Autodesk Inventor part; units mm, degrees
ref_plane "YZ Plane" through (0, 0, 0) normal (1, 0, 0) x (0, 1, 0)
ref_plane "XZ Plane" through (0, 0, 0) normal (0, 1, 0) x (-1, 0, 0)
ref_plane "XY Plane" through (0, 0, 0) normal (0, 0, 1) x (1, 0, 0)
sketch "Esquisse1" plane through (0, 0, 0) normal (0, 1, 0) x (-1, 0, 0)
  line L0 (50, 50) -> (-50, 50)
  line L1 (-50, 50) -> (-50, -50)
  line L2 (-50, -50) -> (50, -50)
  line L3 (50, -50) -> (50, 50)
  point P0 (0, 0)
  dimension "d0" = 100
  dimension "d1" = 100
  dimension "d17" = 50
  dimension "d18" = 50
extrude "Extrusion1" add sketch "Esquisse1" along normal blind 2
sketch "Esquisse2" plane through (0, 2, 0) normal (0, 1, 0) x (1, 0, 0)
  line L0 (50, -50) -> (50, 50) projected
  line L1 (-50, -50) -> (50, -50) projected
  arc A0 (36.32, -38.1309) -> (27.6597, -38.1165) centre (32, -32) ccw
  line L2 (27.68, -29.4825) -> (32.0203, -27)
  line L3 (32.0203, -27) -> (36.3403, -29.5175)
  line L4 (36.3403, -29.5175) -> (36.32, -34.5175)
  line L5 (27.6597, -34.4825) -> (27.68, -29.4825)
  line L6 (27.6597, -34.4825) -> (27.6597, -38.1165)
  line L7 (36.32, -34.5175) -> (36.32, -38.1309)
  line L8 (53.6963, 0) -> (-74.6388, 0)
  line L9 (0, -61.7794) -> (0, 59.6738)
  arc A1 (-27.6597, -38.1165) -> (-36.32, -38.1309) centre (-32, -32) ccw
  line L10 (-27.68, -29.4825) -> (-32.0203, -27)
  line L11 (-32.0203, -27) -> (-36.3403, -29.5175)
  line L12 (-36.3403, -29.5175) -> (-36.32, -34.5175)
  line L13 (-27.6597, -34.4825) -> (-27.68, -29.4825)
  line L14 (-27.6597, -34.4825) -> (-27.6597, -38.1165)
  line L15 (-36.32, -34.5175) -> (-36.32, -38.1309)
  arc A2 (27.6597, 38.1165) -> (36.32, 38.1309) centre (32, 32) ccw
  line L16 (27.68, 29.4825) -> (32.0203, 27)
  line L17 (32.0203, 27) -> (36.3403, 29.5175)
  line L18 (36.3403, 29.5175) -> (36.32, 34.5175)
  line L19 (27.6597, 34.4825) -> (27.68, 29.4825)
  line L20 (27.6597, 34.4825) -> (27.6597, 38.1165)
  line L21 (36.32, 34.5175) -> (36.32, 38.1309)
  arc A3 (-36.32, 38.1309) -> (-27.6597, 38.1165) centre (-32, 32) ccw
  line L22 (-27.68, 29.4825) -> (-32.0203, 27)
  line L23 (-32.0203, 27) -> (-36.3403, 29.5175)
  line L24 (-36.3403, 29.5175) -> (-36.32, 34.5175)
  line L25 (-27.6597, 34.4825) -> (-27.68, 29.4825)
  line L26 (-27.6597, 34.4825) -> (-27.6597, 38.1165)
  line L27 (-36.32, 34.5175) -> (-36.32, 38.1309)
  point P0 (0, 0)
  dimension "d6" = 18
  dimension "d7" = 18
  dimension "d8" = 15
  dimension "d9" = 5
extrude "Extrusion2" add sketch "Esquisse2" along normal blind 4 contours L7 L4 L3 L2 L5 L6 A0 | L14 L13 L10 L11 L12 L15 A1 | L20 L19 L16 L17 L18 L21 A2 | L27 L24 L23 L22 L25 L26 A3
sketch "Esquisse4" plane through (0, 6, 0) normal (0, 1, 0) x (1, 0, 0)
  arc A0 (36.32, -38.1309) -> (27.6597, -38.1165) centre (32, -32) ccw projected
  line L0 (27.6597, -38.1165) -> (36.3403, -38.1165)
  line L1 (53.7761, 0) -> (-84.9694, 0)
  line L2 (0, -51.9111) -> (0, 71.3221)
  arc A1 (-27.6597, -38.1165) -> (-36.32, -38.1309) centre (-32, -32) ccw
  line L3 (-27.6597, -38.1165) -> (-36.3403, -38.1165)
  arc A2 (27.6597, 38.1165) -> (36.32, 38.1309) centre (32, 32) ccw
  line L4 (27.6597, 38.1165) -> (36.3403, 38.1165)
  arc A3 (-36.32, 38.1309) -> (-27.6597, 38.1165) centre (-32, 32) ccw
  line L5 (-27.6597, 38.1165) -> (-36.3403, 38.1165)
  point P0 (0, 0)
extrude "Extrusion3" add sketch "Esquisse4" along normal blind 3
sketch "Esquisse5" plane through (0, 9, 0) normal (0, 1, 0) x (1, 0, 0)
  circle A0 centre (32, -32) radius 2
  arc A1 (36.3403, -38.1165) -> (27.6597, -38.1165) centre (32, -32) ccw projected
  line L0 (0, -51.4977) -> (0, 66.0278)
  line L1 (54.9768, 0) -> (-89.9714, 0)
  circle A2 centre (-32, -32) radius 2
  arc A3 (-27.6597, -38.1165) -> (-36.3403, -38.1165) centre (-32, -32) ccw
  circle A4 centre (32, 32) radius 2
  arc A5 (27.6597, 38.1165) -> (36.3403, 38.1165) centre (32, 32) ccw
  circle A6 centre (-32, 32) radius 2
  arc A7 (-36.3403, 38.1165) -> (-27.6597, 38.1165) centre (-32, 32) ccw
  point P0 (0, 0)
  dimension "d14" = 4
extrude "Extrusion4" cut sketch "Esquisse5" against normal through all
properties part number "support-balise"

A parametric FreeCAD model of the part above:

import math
import FreeCAD as App
import Part
import Sketcher

V = App.Vector

doc = App.newDocument("Part")
params = doc.addObject("Spreadsheet::Sheet", "Params")
for row, (alias, value) in enumerate([
    ("sketch1_width", "100 mm"),
    ("pad1_length", "2 mm"),
    ("sketch2_radius", "7.5 mm"),
    ("sketch2_length", "5 mm"),
    ("pad2_length", "4 mm"),
    ("sketch3_radius", "7.5 mm"),
    ("pad3_length", "3 mm"),
    ("sketch4_diameter", "4 mm"),
], start=1):
    params.set(f"A{row}", alias)
    params.set(f"B{row}", "=" + value)
    params.setAlias(f"B{row}", alias)

body = doc.addObject("PartDesign::Body", "Body")

sketch1 = body.newObject("Sketcher::SketchObject", "Sketch")
sketch1.AttachmentSupport = (doc.getObject("XZ_Plane"), [""])
sketch1.MapMode = "FlatFace"
sketch1.addGeometry(Part.LineSegment(V(-50, -50, 0), V(-50, 50, 0)), False)
sketch1.addGeometry(Part.LineSegment(V(-50, 50, 0), V(50, 50, 0)), False)
sketch1.addGeometry(Part.LineSegment(V(50, 50, 0), V(50, -50, 0)), False)
sketch1.addGeometry(Part.LineSegment(V(50, -50, 0), V(-50, -50, 0)), False)
sketch1.addConstraint(Sketcher.Constraint("Coincident", 0, 2, 1, 1))
sketch1.addConstraint(Sketcher.Constraint("Coincident", 1, 2, 2, 1))
sketch1.addConstraint(Sketcher.Constraint("Coincident", 2, 2, 3, 1))
sketch1.addConstraint(Sketcher.Constraint("Coincident", 3, 2, 0, 1))
sketch1.addConstraint(Sketcher.Constraint("Vertical", 0))
sketch1.addConstraint(Sketcher.Constraint("Horizontal", 1))
sketch1.addConstraint(Sketcher.Constraint("Vertical", 2))
sketch1.addConstraint(Sketcher.Constraint("Horizontal", 3))
sketch1.addConstraint(Sketcher.Constraint("Symmetric", 0, 2, 2, 2, -1, 1))
sketch1.addConstraint(Sketcher.Constraint("Equal", 3, 0))
sketch1.addConstraint(Sketcher.Constraint("DistanceX", 1, 1, 1, 2, 100.0))
sketch1.setExpression("Constraints[10]", "Params.sketch1_width")
pad1 = body.newObject("PartDesign::Pad", "Pad")
pad1.Profile = sketch1
pad1.setExpression("Length", "Params.pad1_length")
pad1.Reversed = True

sketch2 = body.newObject("Sketcher::SketchObject", "Sketch001")
sketch2.AttachmentSupport = (doc.getObject("XZ_Plane"), [""])
sketch2.MapMode = "FlatFace"
sketch2.AttachmentOffset = App.Placement(V(0, 0, -2), App.Rotation())
sketch2.addGeometry(Part.LineSegment(V(36.32, 34.5175, 0), V(36.32, 38.1309, 0)), False)
sketch2.addGeometry(Part.ArcOfCircle(Part.Circle(V(32, 32, 0), V(0, 0, 1), 7.500022), math.radians(125.359709), math.radians(414.830427)), False)
sketch2.addGeometry(Part.LineSegment(V(27.6597, 38.1165, 0), V(27.6597, 34.4825, 0)), False)
sketch2.addGeometry(Part.LineSegment(V(27.6597, 34.4825, 0), V(27.68, 29.4825, 0)), False)
sketch2.addGeometry(Part.LineSegment(V(27.68, 29.4825, 0), V(32.0203, 27, 0)), False)
sketch2.addGeometry(Part.LineSegment(V(32.0203, 27, 0), V(36.3403, 29.5175, 0)), False)
sketch2.addGeometry(Part.LineSegment(V(36.3403, 29.5175, 0), V(36.32, 34.5175, 0)), False)
sketch2.addGeometry(Part.LineSegment(V(-27.6597, 34.4825, 0), V(-27.6597, 38.1165, 0)), False)
sketch2.addGeometry(Part.ArcOfCircle(Part.Circle(V(-32, 32, 0), V(0, 0, 1), 7.499985), math.radians(125.169573), math.radians(414.640291)), False)
sketch2.addGeometry(Part.LineSegment(V(-36.32, 38.1309, 0), V(-36.32, 34.5175, 0)), False)
sketch2.addGeometry(Part.LineSegment(V(-36.32, 34.5175, 0), V(-36.3403, 29.5175, 0)), False)
sketch2.addGeometry(Part.LineSegment(V(-36.3403, 29.5175, 0), V(-32.0203, 27, 0)), False)
sketch2.addGeometry(Part.LineSegment(V(-32.0203, 27, 0), V(-27.68, 29.4825, 0)), False)
sketch2.addGeometry(Part.LineSegment(V(-27.68, 29.4825, 0), V(-27.6597, 34.4825, 0)), False)
sketch2.addGeometry(Part.LineSegment(V(27.6597, -34.4825, 0), V(27.6597, -38.1165, 0)), False)
sketch2.addGeometry(Part.ArcOfCircle(Part.Circle(V(32, -32, 0), V(0, 0, 1), 7.499985), math.radians(-54.830427), math.radians(234.640291)), False)
sketch2.addGeometry(Part.LineSegment(V(36.32, -38.1309, 0), V(36.32, -34.5175, 0)), False)
sketch2.addGeometry(Part.LineSegment(V(36.32, -34.5175, 0), V(36.3403, -29.5175, 0)), False)
sketch2.addGeometry(Part.LineSegment(V(36.3403, -29.5175, 0), V(32.0203, -27, 0)), False)
sketch2.addGeometry(Part.LineSegment(V(32.0203, -27, 0), V(27.68, -29.4825, 0)), False)
sketch2.addGeometry(Part.LineSegment(V(27.68, -29.4825, 0), V(27.6597, -34.4825, 0)), False)
sketch2.addGeometry(Part.LineSegment(V(-36.32, -34.5175, 0), V(-36.32, -38.1309, 0)), False)
sketch2.addGeometry(Part.ArcOfCircle(Part.Circle(V(-32, -32, 0), V(0, 0, 1), 7.500022), math.radians(-54.640291), math.radians(234.830427)), False)
sketch2.addGeometry(Part.LineSegment(V(-27.6597, -38.1165, 0), V(-27.6597, -34.4825, 0)), False)
sketch2.addGeometry(Part.LineSegment(V(-27.6597, -34.4825, 0), V(-27.68, -29.4825, 0)), False)
sketch2.addGeometry(Part.LineSegment(V(-27.68, -29.4825, 0), V(-32.0203, -27, 0)), False)
sketch2.addGeometry(Part.LineSegment(V(-32.0203, -27, 0), V(-36.3403, -29.5175, 0)), False)
sketch2.addGeometry(Part.LineSegment(V(-36.3403, -29.5175, 0), V(-36.32, -34.5175, 0)), False)
sketch2.addConstraint(Sketcher.Constraint("Coincident", 0, 2, 1, 2))
sketch2.addConstraint(Sketcher.Constraint("Coincident", 1, 1, 2, 1))
sketch2.addConstraint(Sketcher.Constraint("Coincident", 2, 2, 3, 1))
sketch2.addConstraint(Sketcher.Constraint("Coincident", 3, 2, 4, 1))
sketch2.addConstraint(Sketcher.Constraint("Coincident", 4, 2, 5, 1))
sketch2.addConstraint(Sketcher.Constraint("Coincident", 5, 2, 6, 1))
sketch2.addConstraint(Sketcher.Constraint("Coincident", 6, 2, 0, 1))
sketch2.addConstraint(Sketcher.Constraint("Coincident", 7, 2, 8, 2))
sketch2.addConstraint(Sketcher.Constraint("Coincident", 8, 1, 9, 1))
sketch2.addConstraint(Sketcher.Constraint("Coincident", 9, 2, 10, 1))
sketch2.addConstraint(Sketcher.Constraint("Coincident", 10, 2, 11, 1))
sketch2.addConstraint(Sketcher.Constraint("Coincident", 11, 2, 12, 1))
sketch2.addConstraint(Sketcher.Constraint("Coincident", 12, 2, 13, 1))
sketch2.addConstraint(Sketcher.Constraint("Coincident", 13, 2, 7, 1))
sketch2.addConstraint(Sketcher.Constraint("Coincident", 14, 2, 15, 2))
sketch2.addConstraint(Sketcher.Constraint("Coincident", 15, 1, 16, 1))
sketch2.addConstraint(Sketcher.Constraint("Coincident", 16, 2, 17, 1))
sketch2.addConstraint(Sketcher.Constraint("Coincident", 17, 2, 18, 1))
sketch2.addConstraint(Sketcher.Constraint("Coincident", 18, 2, 19, 1))
sketch2.addConstraint(Sketcher.Constraint("Coincident", 19, 2, 20, 1))
sketch2.addConstraint(Sketcher.Constraint("Coincident", 20, 2, 14, 1))
sketch2.addConstraint(Sketcher.Constraint("Coincident", 21, 2, 22, 2))
sketch2.addConstraint(Sketcher.Constraint("Coincident", 22, 1, 23, 1))
sketch2.addConstraint(Sketcher.Constraint("Coincident", 23, 2, 24, 1))
sketch2.addConstraint(Sketcher.Constraint("Coincident", 24, 2, 25, 1))
sketch2.addConstraint(Sketcher.Constraint("Coincident", 25, 2, 26, 1))
sketch2.addConstraint(Sketcher.Constraint("Coincident", 26, 2, 27, 1))
sketch2.addConstraint(Sketcher.Constraint("Coincident", 27, 2, 21, 1))
sketch2.addConstraint(Sketcher.Constraint("Vertical", 0))
sketch2.addConstraint(Sketcher.Constraint("Vertical", 2))
sketch2.addConstraint(Sketcher.Constraint("Vertical", 7))
sketch2.addConstraint(Sketcher.Constraint("Vertical", 9))
sketch2.addConstraint(Sketcher.Constraint("Vertical", 14))
sketch2.addConstraint(Sketcher.Constraint("Vertical", 16))
sketch2.addConstraint(Sketcher.Constraint("Vertical", 21))
sketch2.addConstraint(Sketcher.Constraint("Vertical", 23))
sketch2.addConstraint(Sketcher.Constraint("Equal", 1, 8))
sketch2.addConstraint(Sketcher.Constraint("Equal", 8, 15))
sketch2.addConstraint(Sketcher.Constraint("Equal", 15, 22))
sketch2.addConstraint(Sketcher.Constraint("Symmetric", 8, 3, 15, 3, -1, 1))
sketch2.addConstraint(Sketcher.Constraint("Symmetric", 1, 3, 22, 3, -1, 1))
sketch2.addConstraint(Sketcher.Constraint("Symmetric", 9, 2, 16, 2, -1, 1))
sketch2.addConstraint(Sketcher.Constraint("Symmetric", 10, 2, 17, 2, -1, 1))
sketch2.addConstraint(Sketcher.Constraint("Symmetric", 11, 2, 18, 2, -1, 1))
sketch2.addConstraint(Sketcher.Constraint("Symmetric", 12, 2, 19, 2, -1, 1))
sketch2.addConstraint(Sketcher.Constraint("Symmetric", 13, 2, 20, 2, -1, 1))
sketch2.addConstraint(Sketcher.Constraint("Symmetric", 2, 2, 23, 2, -1, 1))
sketch2.addConstraint(Sketcher.Constraint("Symmetric", 3, 2, 24, 2, -1, 1))
sketch2.addConstraint(Sketcher.Constraint("Symmetric", 4, 2, 25, 2, -1, 1))
sketch2.addConstraint(Sketcher.Constraint("Symmetric", 5, 2, 26, 2, -1, 1))
sketch2.addConstraint(Sketcher.Constraint("Symmetric", 6, 2, 27, 2, -1, 1))
sketch2.addConstraint(Sketcher.Constraint("Symmetric", 1, 3, 8, 3, -2))
sketch2.addConstraint(Sketcher.Constraint("Symmetric", 6, 2, 9, 2, -2))
sketch2.addConstraint(Sketcher.Constraint("Symmetric", 5, 2, 10, 2, -2))
sketch2.addConstraint(Sketcher.Constraint("Symmetric", 4, 2, 11, 2, -2))
sketch2.addConstraint(Sketcher.Constraint("Symmetric", 3, 2, 12, 2, -2))
sketch2.addConstraint(Sketcher.Constraint("Symmetric", 2, 2, 13, 2, -2))
sketch2.addConstraint(Sketcher.Constraint("Parallel", 3, 6))
sketch2.addConstraint(Sketcher.Constraint("Equal", 3, 4))
sketch2.addConstraint(Sketcher.Constraint("Equal", 4, 5))
sketch2.addConstraint(Sketcher.Constraint("Equal", 5, 6))
sketch2.addConstraint(Sketcher.Constraint("Radius", 1, 7.5))
sketch2.addConstraint(Sketcher.Constraint("Distance", 3, 5.0))
sketch2.addConstraint(Sketcher.Constraint("DistanceY", 4, 2, 1, 3, 5.0))
sketch2.addConstraint(Sketcher.Constraint("DistanceX", -1, 1, 1, 3, 32.0))
sketch2.addConstraint(Sketcher.Constraint("DistanceY", -1, 1, 1, 3, 32.0))
sketch2.addConstraint(Sketcher.Constraint("DistanceX", 8, 1, 3, 2, 64.0))
sketch2.addConstraint(Sketcher.Constraint("DistanceY", 2, 2, 2, 1, 3.634))
sketch2.addConstraint(Sketcher.Constraint("DistanceX", -1, 1, 0, 2, 36.32))
sketch2.addConstraint(Sketcher.Constraint("DistanceX", 4, 2, 5, 2, 4.32))
sketch2.setExpression("Constraints[61]", "Params.sketch2_radius")
sketch2.setExpression("Constraints[62]", "Params.sketch2_length")
pad2 = body.newObject("PartDesign::Pad", "Pad001")
pad2.Profile = sketch2
pad2.setExpression("Length", "Params.pad2_length")
pad2.Reversed = True

sketch3 = body.newObject("Sketcher::SketchObject", "Sketch002")
sketch3.AttachmentSupport = (doc.getObject("XZ_Plane"), [""])
sketch3.MapMode = "FlatFace"
sketch3.AttachmentOffset = App.Placement(V(0, 0, -6), App.Rotation())
sketch3.addGeometry(Part.LineSegment(V(27.6597, 38.1165, 0), V(36.3403, 38.1165, 0)), False)
sketch3.addGeometry(Part.ArcOfCircle(Part.Circle(V(32, 32, 0), V(0, 0, 1), 7.500022), math.radians(125.359709), math.radians(414.640291)), False)
sketch3.addGeometry(Part.LineSegment(V(-36.3403, 38.1165, 0), V(-27.6597, 38.1165, 0)), False)
sketch3.addGeometry(Part.ArcOfCircle(Part.Circle(V(-32, 32, 0), V(0, 0, 1), 7.499985), math.radians(125.359709), math.radians(414.640291)), False)
sketch3.addGeometry(Part.LineSegment(V(36.3403, -38.1165, 0), V(27.6597, -38.1165, 0)), False)
sketch3.addGeometry(Part.ArcOfCircle(Part.Circle(V(32, -32, 0), V(0, 0, 1), 7.499985), math.radians(-54.640291), math.radians(234.640291)), False)
sketch3.addGeometry(Part.LineSegment(V(-27.6597, -38.1165, 0), V(-36.3403, -38.1165, 0)), False)
sketch3.addGeometry(Part.ArcOfCircle(Part.Circle(V(-32, -32, 0), V(0, 0, 1), 7.500022), math.radians(-54.640291), math.radians(234.640291)), False)
sketch3.addConstraint(Sketcher.Constraint("Coincident", 0, 1, 1, 1))
sketch3.addConstraint(Sketcher.Constraint("Coincident", 1, 2, 0, 2))
sketch3.addConstraint(Sketcher.Constraint("Coincident", 2, 1, 3, 1))
sketch3.addConstraint(Sketcher.Constraint("Coincident", 3, 2, 2, 2))
sketch3.addConstraint(Sketcher.Constraint("Coincident", 4, 1, 5, 1))
sketch3.addConstraint(Sketcher.Constraint("Coincident", 5, 2, 4, 2))
sketch3.addConstraint(Sketcher.Constraint("Coincident", 6, 1, 7, 1))
sketch3.addConstraint(Sketcher.Constraint("Coincident", 7, 2, 6, 2))
sketch3.addConstraint(Sketcher.Constraint("Horizontal", 0))
sketch3.addConstraint(Sketcher.Constraint("Horizontal", 2))
sketch3.addConstraint(Sketcher.Constraint("Horizontal", 4))
sketch3.addConstraint(Sketcher.Constraint("Horizontal", 6))
sketch3.addConstraint(Sketcher.Constraint("Equal", 1, 3))
sketch3.addConstraint(Sketcher.Constraint("Equal", 3, 5))
sketch3.addConstraint(Sketcher.Constraint("Equal", 5, 7))
sketch3.addConstraint(Sketcher.Constraint("Symmetric", 3, 3, 5, 3, -1, 1))
sketch3.addConstraint(Sketcher.Constraint("Symmetric", 1, 3, 7, 3, -1, 1))
sketch3.addConstraint(Sketcher.Constraint("Symmetric", 1, 3, 3, 3, -2))
sketch3.addConstraint(Sketcher.Constraint("Horizontal", 1, 2, 2, 1))
sketch3.addConstraint(Sketcher.Constraint("Horizontal", 5, 2, 6, 1))
sketch3.addConstraint(Sketcher.Constraint("Vertical", 1, 2, 4, 1))
sketch3.addConstraint(Sketcher.Constraint("Radius", 1, 7.5))
sketch3.addConstraint(Sketcher.Constraint("DistanceX", -1, 1, 1, 3, 32.0))
sketch3.addConstraint(Sketcher.Constraint("DistanceY", -1, 1, 1, 3, 32.0))
sketch3.addConstraint(Sketcher.Constraint("DistanceX", 0, 1, 0, 2, 8.6806))
sketch3.setExpression("Constraints[21]", "Params.sketch3_radius")
pad3 = body.newObject("PartDesign::Pad", "Pad002")
pad3.Profile = sketch3
pad3.setExpression("Length", "Params.pad3_length")
pad3.Reversed = True

sketch4 = body.newObject("Sketcher::SketchObject", "Sketch003")
sketch4.AttachmentSupport = (doc.getObject("XZ_Plane"), [""])
sketch4.MapMode = "FlatFace"
sketch4.AttachmentOffset = App.Placement(V(0, 0, -9), App.Rotation())
sketch4.addGeometry(Part.Circle(V(32, 32, 0), V(0, 0, 1), 2), False)
sketch4.addGeometry(Part.Circle(V(-32, 32, 0), V(0, 0, 1), 2), False)
sketch4.addGeometry(Part.Circle(V(32, -32, 0), V(0, 0, 1), 2), False)
sketch4.addGeometry(Part.Circle(V(-32, -32, 0), V(0, 0, 1), 2), False)
sketch4.addConstraint(Sketcher.Constraint("Equal", 0, 1))
sketch4.addConstraint(Sketcher.Constraint("Equal", 1, 2))
sketch4.addConstraint(Sketcher.Constraint("Equal", 2, 3))
sketch4.addConstraint(Sketcher.Constraint("Symmetric", 1, 3, 2, 3, -1, 1))
sketch4.addConstraint(Sketcher.Constraint("Symmetric", 0, 3, 3, 3, -1, 1))
sketch4.addConstraint(Sketcher.Constraint("Symmetric", 0, 3, 1, 3, -2))
sketch4.addConstraint(Sketcher.Constraint("Diameter", 0, 4.0))
sketch4.addConstraint(Sketcher.Constraint("DistanceX", -1, 1, 0, 3, 32.0))
sketch4.addConstraint(Sketcher.Constraint("DistanceY", -1, 1, 0, 3, 32.0))
sketch4.setExpression("Constraints[6]", "Params.sketch4_diameter")
pocket1 = body.newObject("PartDesign::Pocket", "Pocket")
pocket1.Profile = sketch4
pocket1.Type = "ThroughAll"
pocket1.Reversed = True

doc.recompute()
